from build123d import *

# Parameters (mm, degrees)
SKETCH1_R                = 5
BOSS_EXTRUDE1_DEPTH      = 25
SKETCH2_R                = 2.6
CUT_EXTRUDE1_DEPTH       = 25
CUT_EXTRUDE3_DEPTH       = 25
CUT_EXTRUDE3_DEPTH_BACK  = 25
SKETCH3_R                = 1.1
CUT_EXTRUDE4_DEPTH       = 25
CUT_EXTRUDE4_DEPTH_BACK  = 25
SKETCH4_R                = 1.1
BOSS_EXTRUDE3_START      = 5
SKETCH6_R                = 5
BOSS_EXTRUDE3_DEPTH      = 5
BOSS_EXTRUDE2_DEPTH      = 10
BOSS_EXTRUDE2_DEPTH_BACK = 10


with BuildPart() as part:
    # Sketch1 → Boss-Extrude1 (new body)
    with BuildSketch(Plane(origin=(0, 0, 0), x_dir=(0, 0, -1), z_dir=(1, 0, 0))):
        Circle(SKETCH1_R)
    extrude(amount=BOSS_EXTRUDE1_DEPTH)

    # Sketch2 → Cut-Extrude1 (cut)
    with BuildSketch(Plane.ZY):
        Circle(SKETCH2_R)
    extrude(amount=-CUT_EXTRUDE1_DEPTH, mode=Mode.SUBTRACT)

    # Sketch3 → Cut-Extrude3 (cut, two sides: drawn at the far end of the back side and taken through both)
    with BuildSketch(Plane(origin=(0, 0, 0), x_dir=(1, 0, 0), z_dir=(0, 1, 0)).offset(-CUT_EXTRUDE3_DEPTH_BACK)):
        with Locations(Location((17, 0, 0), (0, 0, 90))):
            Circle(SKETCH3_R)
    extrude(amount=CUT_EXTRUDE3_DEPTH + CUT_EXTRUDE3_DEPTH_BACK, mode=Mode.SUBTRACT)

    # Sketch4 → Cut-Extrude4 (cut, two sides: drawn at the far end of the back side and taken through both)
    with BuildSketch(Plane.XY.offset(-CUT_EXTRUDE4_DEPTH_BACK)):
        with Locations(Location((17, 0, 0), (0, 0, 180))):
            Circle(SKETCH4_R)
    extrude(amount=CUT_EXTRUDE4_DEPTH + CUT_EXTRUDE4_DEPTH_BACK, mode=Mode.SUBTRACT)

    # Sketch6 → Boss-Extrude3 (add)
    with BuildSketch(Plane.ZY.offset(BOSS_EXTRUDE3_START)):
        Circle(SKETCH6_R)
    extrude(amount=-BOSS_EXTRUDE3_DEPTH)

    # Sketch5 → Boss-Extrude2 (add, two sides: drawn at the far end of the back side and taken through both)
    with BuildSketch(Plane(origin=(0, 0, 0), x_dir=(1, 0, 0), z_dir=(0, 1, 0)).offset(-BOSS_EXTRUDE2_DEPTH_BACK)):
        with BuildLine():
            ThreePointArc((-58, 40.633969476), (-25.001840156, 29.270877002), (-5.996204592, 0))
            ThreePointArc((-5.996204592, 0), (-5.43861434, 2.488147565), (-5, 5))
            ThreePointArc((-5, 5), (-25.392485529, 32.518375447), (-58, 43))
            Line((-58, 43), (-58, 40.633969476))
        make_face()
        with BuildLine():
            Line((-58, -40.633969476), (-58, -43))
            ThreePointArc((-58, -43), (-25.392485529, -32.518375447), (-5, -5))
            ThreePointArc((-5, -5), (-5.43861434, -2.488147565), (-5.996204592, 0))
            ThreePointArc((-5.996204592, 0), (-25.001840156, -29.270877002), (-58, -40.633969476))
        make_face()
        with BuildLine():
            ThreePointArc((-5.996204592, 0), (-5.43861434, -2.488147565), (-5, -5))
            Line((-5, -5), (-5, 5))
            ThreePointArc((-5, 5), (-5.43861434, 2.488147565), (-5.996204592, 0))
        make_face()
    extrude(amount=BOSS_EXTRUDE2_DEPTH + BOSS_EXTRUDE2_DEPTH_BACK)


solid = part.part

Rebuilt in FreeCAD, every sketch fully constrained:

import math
import FreeCAD as App
import Part
import Sketcher

V = App.Vector
Q = App.Units.Quantity

doc = App.newDocument("Part")
params = doc.addObject("Spreadsheet::Sheet", "Params")
for row, (alias, value) in enumerate([
    ("sketch1_diameter", "10 mm"),
    ("pad1_length", "25 mm"),
    ("sketch2_diameter", "5.2 mm"),
    ("pocket1_length", "25 mm"),
    ("sketch3_diameter", "2.2 mm"),
    ("sketch4_diameter", "2.2 mm"),
    ("sketch5_diameter", "10 mm"),
    ("pad2_length", "5 mm"),
    ("sketch6_height", "10 mm"),
    ("pad3_length", "10 mm"),
    ("pad3_length2", "10 mm"),
], start=1):
    params.set(f"A{row}", alias)
    params.set(f"B{row}", "=" + value)
    params.setAlias(f"B{row}", alias)

body = doc.addObject("PartDesign::Body", "Body")

# Sketch on YZ plane
sketch1 = doc.addObject("Sketcher::SketchObject", "Sketch")
body.addObject(sketch1)
sketch1.AttachmentSupport = (doc.YZ_Plane, [""])
sketch1.MapMode = "FlatFace"
sketch1.addGeometry(Part.Circle(V(0, 0, 0), V(0, 0, 1), 5), False)
sketch1.addConstraint(Sketcher.Constraint("Coincident", 0, 3, -1, 1))
sketch1.addConstraint(Sketcher.Constraint("Diameter", 0, Q("10 mm")))
sketch1.setExpression("Constraints[1]", "Params.sketch1_diameter")
pad1 = doc.addObject("PartDesign::Pad", "Pad")
body.addObject(pad1)
pad1.Profile = sketch1
pad1.setExpression("Length", "Params.pad1_length")

# Sketch on YZ plane
sketch2 = doc.addObject("Sketcher::SketchObject", "Sketch001")
body.addObject(sketch2)
sketch2.AttachmentSupport = (doc.YZ_Plane, [""])
sketch2.MapMode = "FlatFace"
sketch2.addGeometry(Part.Circle(V(0, 0, 0), V(0, 0, 1), 2.6), False)
sketch2.addConstraint(Sketcher.Constraint("Coincident", 0, 3, -1, 1))
sketch2.addConstraint(Sketcher.Constraint("Diameter", 0, Q("5.2 mm")))
sketch2.setExpression("Constraints[1]", "Params.sketch2_diameter")
pocket1 = doc.addObject("PartDesign::Pocket", "Pocket")
body.addObject(pocket1)
pocket1.Profile = sketch2
pocket1.setExpression("Length", "Params.pocket1_length")
pocket1.Reversed = True

# Sketch on XZ plane
sketch3 = doc.addObject("Sketcher::SketchObject", "Sketch002")
body.addObject(sketch3)
sketch3.AttachmentSupport = (doc.XZ_Plane, [""])
sketch3.MapMode = "FlatFace"
sketch3.addGeometry(Part.Circle(V(17, 0, 0), V(0, 0, 1), 1.1), False)
sketch3.addConstraint(Sketcher.Constraint("PointOnObject", 0, 3, -1))
sketch3.addConstraint(Sketcher.Constraint("Diameter", 0, Q("2.2 mm")))
sketch3.addConstraint(Sketcher.Constraint("DistanceX", -1, 1, 0, 3, Q("17 mm")))
sketch3.setExpression("Constraints[1]", "Params.sketch3_diameter")
pocket2 = doc.addObject("PartDesign::Pocket", "Pocket001")
body.addObject(pocket2)
pocket2.Profile = sketch3
pocket2.Type = "ThroughAll"
pocket2.Midplane = True

# Sketch on XY plane
sketch4 = doc.addObject("Sketcher::SketchObject", "Sketch003")
body.addObject(sketch4)
sketch4.AttachmentSupport = (doc.XY_Plane, [""])
sketch4.MapMode = "FlatFace"
sketch4.addGeometry(Part.Circle(V(17, 0, 0), V(0, 0, 1), 1.1), False)
sketch4.addConstraint(Sketcher.Constraint("PointOnObject", 0, 3, -1))
sketch4.addConstraint(Sketcher.Constraint("Diameter", 0, Q("2.2 mm")))
sketch4.addConstraint(Sketcher.Constraint("DistanceX", -1, 1, 0, 3, Q("17 mm")))
sketch4.setExpression("Constraints[1]", "Params.sketch4_diameter")
pocket3 = doc.addObject("PartDesign::Pocket", "Pocket002")
body.addObject(pocket3)
pocket3.Profile = sketch4
pocket3.Type = "ThroughAll"
pocket3.Midplane = True

# Sketch on YZ plane
sketch5 = doc.addObject("Sketcher::SketchObject", "Sketch004")
body.addObject(sketch5)
sketch5.AttachmentSupport = (doc.YZ_Plane, [""])
sketch5.MapMode = "FlatFace"
sketch5.AttachmentOffset = App.Placement(V(0, 0, -5), App.Rotation())
sketch5.addGeometry(Part.Circle(V(0, 0, 0), V(0, 0, 1), 5), False)
sketch5.addConstraint(Sketcher.Constraint("Coincident", 0, 3, -1, 1))
sketch5.addConstraint(Sketcher.Constraint("Diameter", 0, Q("10 mm")))
sketch5.setExpression("Constraints[1]", "Params.sketch5_diameter")
pad2 = doc.addObject("PartDesign::Pad", "Pad001")
body.addObject(pad2)
pad2.Profile = sketch5
pad2.setExpression("Length", "Params.pad2_length")

# Sketch on XZ plane
sketch6 = doc.addObject("Sketcher::SketchObject", "Sketch005")
body.addObject(sketch6)
sketch6.AttachmentSupport = (doc.XZ_Plane, [""])
sketch6.MapMode = "FlatFace"
sketch6.addGeometry(Part.ArcOfCircle(Part.Circle(V(-58, 13, 0), V(0, 0, 1), 53.6), math.radians(-90), math.radians(-14)), False)
sketch6.addGeometry(Part.ArcOfCircle(Part.Circle(V(-58, -13, 0), V(0, 0, 1), 53.6), math.radians(14), math.radians(90)), False)
sketch6.addGeometry(Part.LineSegment(V(-58, 40.6, 0), V(-58, 43, 0)), False)
sketch6.addGeometry(Part.ArcOfCircle(Part.Circle(V(-58, -13, 0), V(0, 0, 1), 56), math.radians(19), math.radians(90)), False)
sketch6.addGeometry(Part.LineSegment(V(-5, 5, 0), V(-5, -5, 0)), False)
sketch6.addGeometry(Part.ArcOfCircle(Part.Circle(V(-58, 13, 0), V(0, 0, 1), 56), math.radians(-90), math.radians(-19)), False)
sketch6.addGeometry(Part.LineSegment(V(-58, -43, 0), V(-58, -40.6, 0)), False)
sketch6.addConstraint(Sketcher.Constraint("Coincident", 0, 2, 1, 1))
sketch6.addConstraint(Sketcher.Constraint("Coincident", 1, 2, 2, 1))
sketch6.addConstraint(Sketcher.Constraint("Coincident", 2, 2, 3, 2))
sketch6.addConstraint(Sketcher.Constraint("Coincident", 3, 1, 4, 1))
sketch6.addConstraint(Sketcher.Constraint("Coincident", 4, 2, 5, 2))
sketch6.addConstraint(Sketcher.Constraint("Coincident", 5, 1, 6, 1))
sketch6.addConstraint(Sketcher.Constraint("Coincident", 6, 2, 0, 1))
sketch6.addConstraint(Sketcher.Constraint("Vertical", 2))
sketch6.addConstraint(Sketcher.Constraint("Vertical", 4))
sketch6.addConstraint(Sketcher.Constraint("Vertical", 6))
sketch6.addConstraint(Sketcher.Constraint("Coincident", 3, 3, 1, 3))
sketch6.addConstraint(Sketcher.Constraint("Coincident", 5, 3, 0, 3))
sketch6.addConstraint(Sketcher.Constraint("Equal", 0, 1))
sketch6.addConstraint(Sketcher.Constraint("Equal", 3, 5))
sketch6.addConstraint(Sketcher.Constraint("Symmetric", 0, 3, 1, 3, -1))
sketch6.addConstraint(Sketcher.Constraint("Vertical", 5, 3, 1, 2))
sketch6.addConstraint(Sketcher.Constraint("Vertical", 2, 2, 5, 1))
sketch6.addConstraint(Sketcher.Constraint("DistanceY", 4, 2, 4, 1, Q("10 mm")))
sketch6.addConstraint(Sketcher.Constraint("DistanceX", 0, 3, -1, 1, Q("58 mm")))
sketch6.addConstraint(Sketcher.Constraint("DistanceY", -1, 1, 2, 2, Q("43 mm")))
sketch6.addConstraint(Sketcher.Constraint("DistanceX", 3, 1, -1, 1, Q("5 mm")))
sketch6.addConstraint(Sketcher.Constraint("Radius", 0, Q("53.594496 mm")))
sketch6.setExpression("Constraints[17]", "Params.sketch6_height")
pad3 = doc.addObject("PartDesign::Pad", "Pad002")
body.addObject(pad3)
pad3.Profile = sketch6
pad3.Type = "TwoLengths"
pad3.setExpression("Length", "Params.pad3_length")
pad3.setExpression("Length2", "Params.pad3_length2")
pad3.Reversed = True

doc.recompute()
